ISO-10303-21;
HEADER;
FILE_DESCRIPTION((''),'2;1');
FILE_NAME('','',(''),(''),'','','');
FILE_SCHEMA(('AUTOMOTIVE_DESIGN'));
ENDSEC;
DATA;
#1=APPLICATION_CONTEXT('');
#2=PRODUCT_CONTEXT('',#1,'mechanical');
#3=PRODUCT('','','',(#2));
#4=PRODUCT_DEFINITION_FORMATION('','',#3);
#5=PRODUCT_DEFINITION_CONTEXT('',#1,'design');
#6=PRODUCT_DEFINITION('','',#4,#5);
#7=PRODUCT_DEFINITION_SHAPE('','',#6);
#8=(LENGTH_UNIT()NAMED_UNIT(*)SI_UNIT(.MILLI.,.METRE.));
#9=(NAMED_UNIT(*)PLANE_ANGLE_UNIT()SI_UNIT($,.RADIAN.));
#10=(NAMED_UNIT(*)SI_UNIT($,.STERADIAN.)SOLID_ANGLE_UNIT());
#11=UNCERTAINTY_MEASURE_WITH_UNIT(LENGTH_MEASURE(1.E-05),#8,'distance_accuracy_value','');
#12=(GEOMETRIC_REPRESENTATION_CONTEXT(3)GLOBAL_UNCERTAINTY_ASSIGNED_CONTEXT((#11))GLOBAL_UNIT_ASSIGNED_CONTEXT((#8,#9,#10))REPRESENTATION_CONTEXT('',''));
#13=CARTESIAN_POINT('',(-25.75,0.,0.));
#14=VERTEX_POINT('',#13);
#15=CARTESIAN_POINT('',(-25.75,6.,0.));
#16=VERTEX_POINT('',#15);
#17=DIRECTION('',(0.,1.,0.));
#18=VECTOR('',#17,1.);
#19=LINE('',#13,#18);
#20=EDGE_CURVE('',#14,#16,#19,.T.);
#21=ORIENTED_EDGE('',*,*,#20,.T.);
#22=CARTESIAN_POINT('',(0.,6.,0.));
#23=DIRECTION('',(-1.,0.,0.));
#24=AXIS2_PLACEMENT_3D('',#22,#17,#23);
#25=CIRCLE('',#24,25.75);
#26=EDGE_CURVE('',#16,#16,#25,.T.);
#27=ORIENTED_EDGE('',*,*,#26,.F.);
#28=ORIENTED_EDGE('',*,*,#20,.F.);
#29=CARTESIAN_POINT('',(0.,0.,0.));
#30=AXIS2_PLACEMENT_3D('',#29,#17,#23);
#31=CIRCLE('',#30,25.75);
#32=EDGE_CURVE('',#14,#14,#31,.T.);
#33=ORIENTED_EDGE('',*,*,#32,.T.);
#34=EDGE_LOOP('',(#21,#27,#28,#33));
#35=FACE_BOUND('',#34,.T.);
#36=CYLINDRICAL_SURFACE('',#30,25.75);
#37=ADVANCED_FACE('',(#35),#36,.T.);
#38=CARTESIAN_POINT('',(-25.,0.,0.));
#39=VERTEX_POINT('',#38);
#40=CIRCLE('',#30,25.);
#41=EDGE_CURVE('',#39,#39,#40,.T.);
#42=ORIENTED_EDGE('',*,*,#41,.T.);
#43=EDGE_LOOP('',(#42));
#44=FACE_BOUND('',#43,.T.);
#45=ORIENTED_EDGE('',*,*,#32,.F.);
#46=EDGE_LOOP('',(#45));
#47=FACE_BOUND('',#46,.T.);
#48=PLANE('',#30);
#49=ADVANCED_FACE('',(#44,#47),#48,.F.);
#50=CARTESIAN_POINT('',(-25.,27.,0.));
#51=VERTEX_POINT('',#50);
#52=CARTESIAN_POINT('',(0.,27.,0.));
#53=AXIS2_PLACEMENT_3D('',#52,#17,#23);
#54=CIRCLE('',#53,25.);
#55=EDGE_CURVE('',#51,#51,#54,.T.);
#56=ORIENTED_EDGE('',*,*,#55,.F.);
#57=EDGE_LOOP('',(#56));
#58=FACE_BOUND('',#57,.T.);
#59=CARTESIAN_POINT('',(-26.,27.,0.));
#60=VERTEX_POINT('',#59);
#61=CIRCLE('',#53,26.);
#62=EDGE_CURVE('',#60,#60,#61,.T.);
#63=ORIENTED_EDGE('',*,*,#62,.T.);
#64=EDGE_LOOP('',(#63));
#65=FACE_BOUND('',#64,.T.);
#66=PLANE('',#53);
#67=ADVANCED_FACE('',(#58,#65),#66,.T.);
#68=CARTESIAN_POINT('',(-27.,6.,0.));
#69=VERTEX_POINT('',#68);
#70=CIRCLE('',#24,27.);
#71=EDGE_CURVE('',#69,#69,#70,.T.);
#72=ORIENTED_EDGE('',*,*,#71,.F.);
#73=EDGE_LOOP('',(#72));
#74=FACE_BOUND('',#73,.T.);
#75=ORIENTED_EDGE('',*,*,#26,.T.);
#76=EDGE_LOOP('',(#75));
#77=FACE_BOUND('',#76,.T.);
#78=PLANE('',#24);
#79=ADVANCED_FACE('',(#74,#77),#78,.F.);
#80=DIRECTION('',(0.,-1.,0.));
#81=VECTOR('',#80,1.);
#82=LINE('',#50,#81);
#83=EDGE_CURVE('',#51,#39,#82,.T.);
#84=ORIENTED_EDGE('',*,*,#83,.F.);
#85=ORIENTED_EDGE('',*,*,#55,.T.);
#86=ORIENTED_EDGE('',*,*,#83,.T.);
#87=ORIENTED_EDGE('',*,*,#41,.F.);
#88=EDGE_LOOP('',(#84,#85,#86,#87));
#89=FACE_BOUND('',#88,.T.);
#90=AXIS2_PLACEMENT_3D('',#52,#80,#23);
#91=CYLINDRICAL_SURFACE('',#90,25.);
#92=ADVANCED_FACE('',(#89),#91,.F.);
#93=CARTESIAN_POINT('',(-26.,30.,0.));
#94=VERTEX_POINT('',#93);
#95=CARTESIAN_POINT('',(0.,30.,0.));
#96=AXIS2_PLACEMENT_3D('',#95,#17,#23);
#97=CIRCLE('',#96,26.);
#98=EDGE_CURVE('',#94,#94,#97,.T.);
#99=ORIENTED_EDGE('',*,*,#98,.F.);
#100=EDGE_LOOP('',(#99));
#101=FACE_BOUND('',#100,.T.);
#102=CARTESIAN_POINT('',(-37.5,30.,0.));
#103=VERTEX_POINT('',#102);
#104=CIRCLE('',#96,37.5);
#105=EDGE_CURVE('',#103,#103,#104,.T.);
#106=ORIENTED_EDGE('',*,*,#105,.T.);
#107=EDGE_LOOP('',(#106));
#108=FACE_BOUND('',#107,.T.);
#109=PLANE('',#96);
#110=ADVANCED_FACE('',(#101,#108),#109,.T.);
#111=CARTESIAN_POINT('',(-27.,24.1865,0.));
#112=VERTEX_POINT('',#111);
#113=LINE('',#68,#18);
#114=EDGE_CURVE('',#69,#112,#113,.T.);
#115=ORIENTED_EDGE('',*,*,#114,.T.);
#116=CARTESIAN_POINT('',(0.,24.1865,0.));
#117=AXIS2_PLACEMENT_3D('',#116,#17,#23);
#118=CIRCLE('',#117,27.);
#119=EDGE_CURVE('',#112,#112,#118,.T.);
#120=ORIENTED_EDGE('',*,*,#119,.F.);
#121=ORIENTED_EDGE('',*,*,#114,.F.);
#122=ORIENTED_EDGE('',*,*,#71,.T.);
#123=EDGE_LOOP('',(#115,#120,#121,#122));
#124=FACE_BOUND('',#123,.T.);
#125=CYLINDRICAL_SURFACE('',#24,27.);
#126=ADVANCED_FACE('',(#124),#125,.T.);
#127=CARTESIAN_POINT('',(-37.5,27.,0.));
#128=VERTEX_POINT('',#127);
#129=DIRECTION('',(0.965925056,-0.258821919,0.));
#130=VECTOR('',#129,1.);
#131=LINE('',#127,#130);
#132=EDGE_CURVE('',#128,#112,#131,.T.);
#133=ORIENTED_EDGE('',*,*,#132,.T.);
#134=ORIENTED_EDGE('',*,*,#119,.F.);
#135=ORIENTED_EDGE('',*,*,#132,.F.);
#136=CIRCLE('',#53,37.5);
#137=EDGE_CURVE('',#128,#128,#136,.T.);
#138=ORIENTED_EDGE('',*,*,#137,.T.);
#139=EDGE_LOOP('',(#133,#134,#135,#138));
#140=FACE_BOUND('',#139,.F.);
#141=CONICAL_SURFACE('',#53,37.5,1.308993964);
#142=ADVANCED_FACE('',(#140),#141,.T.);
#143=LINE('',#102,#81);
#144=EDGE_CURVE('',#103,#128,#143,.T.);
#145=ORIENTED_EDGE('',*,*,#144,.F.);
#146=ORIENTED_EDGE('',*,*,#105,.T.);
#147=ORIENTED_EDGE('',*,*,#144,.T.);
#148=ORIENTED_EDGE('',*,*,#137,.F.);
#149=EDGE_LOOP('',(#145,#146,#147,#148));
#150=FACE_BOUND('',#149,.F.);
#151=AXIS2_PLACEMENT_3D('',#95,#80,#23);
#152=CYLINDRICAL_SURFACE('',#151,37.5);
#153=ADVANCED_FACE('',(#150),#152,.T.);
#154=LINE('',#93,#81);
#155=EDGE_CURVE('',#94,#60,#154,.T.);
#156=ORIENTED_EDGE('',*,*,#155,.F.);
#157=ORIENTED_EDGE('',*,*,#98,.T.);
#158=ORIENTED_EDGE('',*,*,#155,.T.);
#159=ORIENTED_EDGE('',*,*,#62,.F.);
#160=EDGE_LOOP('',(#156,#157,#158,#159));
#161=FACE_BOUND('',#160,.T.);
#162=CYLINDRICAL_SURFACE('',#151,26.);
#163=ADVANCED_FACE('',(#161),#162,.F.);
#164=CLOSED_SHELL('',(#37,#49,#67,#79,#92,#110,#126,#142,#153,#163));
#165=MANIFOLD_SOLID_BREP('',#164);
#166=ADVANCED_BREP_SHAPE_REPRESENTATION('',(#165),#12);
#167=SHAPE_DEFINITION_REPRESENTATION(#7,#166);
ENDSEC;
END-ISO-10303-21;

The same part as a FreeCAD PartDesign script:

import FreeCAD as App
import Part
import Sketcher

V = App.Vector
Q = App.Units.Quantity

doc = App.newDocument("Part")
body = doc.addObject("PartDesign::Body", "Body")

sketch1 = doc.addObject("Sketcher::SketchObject", "Sketch")
body.addObject(sketch1)
sketch1.AttachmentSupport = (doc.XY_Plane, [""])
sketch1.MapMode = "FlatFace"
sketch1.addGeometry([
    Part.LineSegment(V(-25, 0, 0), V(-25, 27, 0)),
    Part.LineSegment(V(-25, 27, 0), V(-26, 27, 0)),
    Part.LineSegment(V(-26, 27, 0), V(-26, 30, 0)),
    Part.LineSegment(V(-26, 30, 0), V(-37.5, 30, 0)),
    Part.LineSegment(V(-37.5, 30, 0), V(-37.5, 27, 0)),
    Part.LineSegment(V(-37.5, 27, 0), V(-27, 24.1865, 0)),
    Part.LineSegment(V(-27, 24.1865, 0), V(-27, 6, 0)),
    Part.LineSegment(V(-27, 6, 0), V(-25.75, 6, 0)),
    Part.LineSegment(V(-25.75, 6, 0), V(-25.75, 0, 0)),
    Part.LineSegment(V(-25.75, 0, 0), V(-25, 0, 0)),
], False)
sketch1.addConstraint([
    Sketcher.Constraint("Coincident", 0, 2, 1, 1),
    Sketcher.Constraint("Coincident", 1, 2, 2, 1),
    Sketcher.Constraint("Coincident", 2, 2, 3, 1),
    Sketcher.Constraint("Coincident", 3, 2, 4, 1),
    Sketcher.Constraint("Coincident", 4, 2, 5, 1),
    Sketcher.Constraint("Coincident", 5, 2, 6, 1),
    Sketcher.Constraint("Coincident", 6, 2, 7, 1),
    Sketcher.Constraint("Coincident", 7, 2, 8, 1),
    Sketcher.Constraint("Coincident", 8, 2, 9, 1),
    Sketcher.Constraint("Coincident", 9, 2, 0, 1),
    Sketcher.Constraint("Vertical", 0),
    Sketcher.Constraint("Horizontal", 1),
    Sketcher.Constraint("Vertical", 2),
    Sketcher.Constraint("Horizontal", 3),
    Sketcher.Constraint("Vertical", 4),
    Sketcher.Constraint("Vertical", 6),
    Sketcher.Constraint("Horizontal", 7),
    Sketcher.Constraint("Vertical", 8),
    Sketcher.Constraint("Horizontal", 9),
    Sketcher.Constraint("PointOnObject", 8, 2, -1),
    Sketcher.Constraint("Horizontal", 1, 2, 4, 2),
    Sketcher.Constraint("DistanceY", 0, 1, 0, 2, 27.0),
    Sketcher.Constraint("DistanceY", 2, 1, 2, 2, 3.0),
    Sketcher.Constraint("DistanceY", 8, 2, 8, 1, 6.0),
    Sketcher.Constraint("Angle", 5, Q("-15.0002 deg")),
    Sketcher.Constraint("DistanceX", 0, 2, -1, 1, 25.0),
    Sketcher.Constraint("DistanceX", 1, 2, -1, 1, 26.0),
    Sketcher.Constraint("DistanceX", 5, 2, -1, 1, 27.0),
    Sketcher.Constraint("DistanceX", 3, 2, -1, 1, 37.5),
    Sketcher.Constraint("DistanceX", 7, 2, -1, 1, 25.75),
])
revolution = doc.addObject("PartDesign::Revolution", "Revolution")
body.addObject(revolution)
revolution.Profile = sketch1
revolution.ReferenceAxis = (sketch1, ["V_Axis"])
revolution.Angle = 360

doc.recompute()
